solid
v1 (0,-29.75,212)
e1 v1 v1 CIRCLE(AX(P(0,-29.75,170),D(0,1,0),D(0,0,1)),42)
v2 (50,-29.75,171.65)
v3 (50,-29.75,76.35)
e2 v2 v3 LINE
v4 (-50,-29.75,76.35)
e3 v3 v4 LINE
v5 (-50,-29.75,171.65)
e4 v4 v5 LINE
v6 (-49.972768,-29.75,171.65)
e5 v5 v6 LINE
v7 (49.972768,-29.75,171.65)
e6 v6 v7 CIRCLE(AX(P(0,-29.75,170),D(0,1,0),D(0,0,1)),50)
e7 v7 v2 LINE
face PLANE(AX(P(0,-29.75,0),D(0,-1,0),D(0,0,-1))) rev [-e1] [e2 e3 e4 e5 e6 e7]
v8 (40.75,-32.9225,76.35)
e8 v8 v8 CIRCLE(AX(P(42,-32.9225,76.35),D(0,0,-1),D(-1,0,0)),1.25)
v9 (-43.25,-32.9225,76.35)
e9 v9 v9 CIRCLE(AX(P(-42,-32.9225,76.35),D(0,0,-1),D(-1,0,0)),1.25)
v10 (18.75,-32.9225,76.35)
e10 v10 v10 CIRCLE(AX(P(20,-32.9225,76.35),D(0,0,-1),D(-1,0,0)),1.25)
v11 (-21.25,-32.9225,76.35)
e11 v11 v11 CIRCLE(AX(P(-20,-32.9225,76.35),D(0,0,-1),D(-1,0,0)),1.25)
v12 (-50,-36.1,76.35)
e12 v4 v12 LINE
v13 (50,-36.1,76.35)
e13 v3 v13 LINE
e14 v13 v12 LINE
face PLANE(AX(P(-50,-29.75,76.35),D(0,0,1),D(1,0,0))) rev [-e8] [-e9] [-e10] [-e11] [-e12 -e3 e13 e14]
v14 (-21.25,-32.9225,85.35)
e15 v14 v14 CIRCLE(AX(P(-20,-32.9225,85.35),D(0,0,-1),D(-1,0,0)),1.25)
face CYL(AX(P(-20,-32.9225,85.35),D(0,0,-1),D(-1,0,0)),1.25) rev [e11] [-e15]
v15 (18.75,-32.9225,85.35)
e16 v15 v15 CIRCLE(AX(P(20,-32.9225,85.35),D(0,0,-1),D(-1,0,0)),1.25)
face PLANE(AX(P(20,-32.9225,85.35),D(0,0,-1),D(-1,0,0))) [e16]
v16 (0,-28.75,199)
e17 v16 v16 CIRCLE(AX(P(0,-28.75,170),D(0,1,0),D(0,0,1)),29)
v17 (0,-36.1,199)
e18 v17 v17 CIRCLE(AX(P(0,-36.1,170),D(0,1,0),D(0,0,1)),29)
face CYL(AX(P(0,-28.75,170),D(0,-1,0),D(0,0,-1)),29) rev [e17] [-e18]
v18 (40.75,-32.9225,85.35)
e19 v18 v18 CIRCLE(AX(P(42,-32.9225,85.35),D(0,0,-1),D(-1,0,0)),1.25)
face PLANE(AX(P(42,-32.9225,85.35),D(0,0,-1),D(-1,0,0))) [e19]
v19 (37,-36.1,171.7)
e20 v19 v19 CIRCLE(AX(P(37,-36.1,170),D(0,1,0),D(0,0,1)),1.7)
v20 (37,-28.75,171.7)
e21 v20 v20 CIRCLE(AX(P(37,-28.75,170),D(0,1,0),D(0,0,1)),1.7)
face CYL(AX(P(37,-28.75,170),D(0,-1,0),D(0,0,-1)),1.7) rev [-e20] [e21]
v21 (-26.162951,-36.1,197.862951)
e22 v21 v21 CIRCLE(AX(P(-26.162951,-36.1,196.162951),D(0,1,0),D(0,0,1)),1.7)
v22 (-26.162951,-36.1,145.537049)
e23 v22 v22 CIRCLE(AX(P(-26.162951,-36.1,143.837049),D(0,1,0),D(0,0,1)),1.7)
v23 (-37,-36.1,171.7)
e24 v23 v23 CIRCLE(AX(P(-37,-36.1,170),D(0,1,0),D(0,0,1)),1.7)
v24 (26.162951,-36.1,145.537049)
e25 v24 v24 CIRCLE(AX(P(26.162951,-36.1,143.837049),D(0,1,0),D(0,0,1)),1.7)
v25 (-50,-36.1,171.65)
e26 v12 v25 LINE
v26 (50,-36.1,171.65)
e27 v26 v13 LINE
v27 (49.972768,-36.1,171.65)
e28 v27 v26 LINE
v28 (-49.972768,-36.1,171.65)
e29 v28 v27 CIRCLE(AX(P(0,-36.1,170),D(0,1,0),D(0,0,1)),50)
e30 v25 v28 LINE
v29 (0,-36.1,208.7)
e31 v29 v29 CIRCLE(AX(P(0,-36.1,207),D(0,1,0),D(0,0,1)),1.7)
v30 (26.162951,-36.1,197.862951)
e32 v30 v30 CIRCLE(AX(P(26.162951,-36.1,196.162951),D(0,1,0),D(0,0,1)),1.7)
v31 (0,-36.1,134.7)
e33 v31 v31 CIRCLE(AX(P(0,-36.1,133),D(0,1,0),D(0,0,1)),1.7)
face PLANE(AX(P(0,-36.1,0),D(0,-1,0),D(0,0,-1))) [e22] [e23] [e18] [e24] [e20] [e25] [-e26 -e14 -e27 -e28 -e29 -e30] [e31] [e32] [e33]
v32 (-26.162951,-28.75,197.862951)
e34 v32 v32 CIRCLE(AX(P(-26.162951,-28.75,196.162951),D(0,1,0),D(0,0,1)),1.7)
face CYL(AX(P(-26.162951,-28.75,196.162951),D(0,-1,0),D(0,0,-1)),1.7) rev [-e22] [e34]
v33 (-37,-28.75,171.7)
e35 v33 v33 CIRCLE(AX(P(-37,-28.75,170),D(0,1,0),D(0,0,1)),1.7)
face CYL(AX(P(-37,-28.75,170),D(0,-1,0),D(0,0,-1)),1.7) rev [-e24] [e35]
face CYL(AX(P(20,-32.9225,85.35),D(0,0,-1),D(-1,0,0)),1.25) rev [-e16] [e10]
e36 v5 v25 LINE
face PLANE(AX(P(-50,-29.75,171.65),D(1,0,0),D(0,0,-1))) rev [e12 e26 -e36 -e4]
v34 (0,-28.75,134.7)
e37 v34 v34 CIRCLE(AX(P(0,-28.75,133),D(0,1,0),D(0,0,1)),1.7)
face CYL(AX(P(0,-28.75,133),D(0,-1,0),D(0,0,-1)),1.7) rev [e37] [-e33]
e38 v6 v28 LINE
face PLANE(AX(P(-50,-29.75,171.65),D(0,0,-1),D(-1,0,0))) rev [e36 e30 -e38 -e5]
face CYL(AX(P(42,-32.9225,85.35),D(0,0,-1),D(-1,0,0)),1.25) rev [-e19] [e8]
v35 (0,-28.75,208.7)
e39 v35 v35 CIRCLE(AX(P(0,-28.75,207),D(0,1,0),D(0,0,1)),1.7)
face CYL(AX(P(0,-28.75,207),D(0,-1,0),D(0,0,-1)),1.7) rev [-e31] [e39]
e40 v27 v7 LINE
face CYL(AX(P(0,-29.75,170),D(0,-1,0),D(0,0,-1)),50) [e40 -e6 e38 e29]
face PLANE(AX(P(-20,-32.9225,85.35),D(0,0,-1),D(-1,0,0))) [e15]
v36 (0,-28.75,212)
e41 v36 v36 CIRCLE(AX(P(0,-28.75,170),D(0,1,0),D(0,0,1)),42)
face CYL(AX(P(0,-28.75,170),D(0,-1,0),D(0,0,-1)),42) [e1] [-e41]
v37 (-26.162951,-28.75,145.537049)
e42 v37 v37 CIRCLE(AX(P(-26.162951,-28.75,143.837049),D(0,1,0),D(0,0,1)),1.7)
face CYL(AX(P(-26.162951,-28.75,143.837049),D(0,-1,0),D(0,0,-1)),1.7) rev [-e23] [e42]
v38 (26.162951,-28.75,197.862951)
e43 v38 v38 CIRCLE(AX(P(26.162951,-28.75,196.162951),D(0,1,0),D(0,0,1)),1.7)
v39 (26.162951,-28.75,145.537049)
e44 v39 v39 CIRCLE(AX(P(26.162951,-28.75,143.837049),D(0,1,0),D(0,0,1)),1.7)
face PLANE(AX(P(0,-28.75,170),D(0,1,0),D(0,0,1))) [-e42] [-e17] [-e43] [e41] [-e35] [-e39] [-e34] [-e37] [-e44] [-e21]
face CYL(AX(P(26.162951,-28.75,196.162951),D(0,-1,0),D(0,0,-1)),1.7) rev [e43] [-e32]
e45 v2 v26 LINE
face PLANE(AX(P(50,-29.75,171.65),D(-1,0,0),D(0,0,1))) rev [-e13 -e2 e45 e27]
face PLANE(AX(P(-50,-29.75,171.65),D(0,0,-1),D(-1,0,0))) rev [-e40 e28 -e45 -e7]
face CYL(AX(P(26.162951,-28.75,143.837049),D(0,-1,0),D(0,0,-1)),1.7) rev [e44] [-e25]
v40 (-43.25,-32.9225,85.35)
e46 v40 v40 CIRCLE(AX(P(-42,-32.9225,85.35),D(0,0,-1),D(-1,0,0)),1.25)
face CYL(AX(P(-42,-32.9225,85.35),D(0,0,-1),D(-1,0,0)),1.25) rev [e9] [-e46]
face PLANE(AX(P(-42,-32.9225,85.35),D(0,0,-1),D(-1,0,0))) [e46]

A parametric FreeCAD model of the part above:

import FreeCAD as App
import Part
import Sketcher

doc = App.newDocument("Part")
body = doc.addObject("PartDesign::Body", "Body")

sketch1 = body.newObject("Sketcher::SketchObject", "Sketch")
sketch1.AttachmentSupport = (doc.getObject("XZ_Plane"), [""])
sketch1.MapMode = "FlatFace"
sketch1.AttachmentOffset = App.Placement(App.Vector(0, 0, 36.1), App.Rotation())
sketch1.addGeometry([
    Part.LineSegment(App.Vector(-50, 76, 0), App.Vector(-50, 172, 0)),
    Part.LineSegment(App.Vector(-50, 172, 0), App.Vector(50, 172, 0)),
    Part.LineSegment(App.Vector(50, 172, 0), App.Vector(50, 76, 0)),
    Part.LineSegment(App.Vector(50, 76, 0), App.Vector(-50, 76, 0)),
], False)
sketch1.addConstraint([
    Sketcher.Constraint("Coincident", 0, 2, 1, 1),
    Sketcher.Constraint("Coincident", 1, 2, 2, 1),
    Sketcher.Constraint("Coincident", 2, 2, 3, 1),
    Sketcher.Constraint("Coincident", 3, 2, 0, 1),
    Sketcher.Constraint("Vertical", 0),
    Sketcher.Constraint("Horizontal", 1),
    Sketcher.Constraint("Vertical", 2),
    Sketcher.Constraint("Horizontal", 3),
    Sketcher.Constraint("DistanceX", 1, 1, 1, 2, 100.0),
    Sketcher.Constraint("DistanceY", 0, 1, 0, 2, 95.3),
    Sketcher.Constraint("DistanceX", 0, 2, -1, 1, 50.0),
    Sketcher.Constraint("DistanceY", -1, 1, 0, 2, 171.65),
])
pad1 = body.newObject("PartDesign::Pad", "Pad")
pad1.Profile = sketch1
pad1.Length = 6.35
pad1.Reversed = True

sketch2 = body.newObject("Sketcher::SketchObject", "Sketch001")
sketch2.AttachmentSupport = (doc.getObject("XZ_Plane"), [""])
sketch2.MapMode = "FlatFace"
sketch2.AttachmentOffset = App.Placement(App.Vector(0, 0, 36.1), App.Rotation())
sketch2.addGeometry(Part.Circle(App.Vector(0, 170, 0), App.Vector(0, 0, 1), 50), False)
sketch2.addConstraint([
    Sketcher.Constraint("PointOnObject", 0, 3, -2),
    Sketcher.Constraint("Diameter", 0, 100.0),
    Sketcher.Constraint("DistanceY", -1, 1, 0, 3, 170.0),
])
pad2 = body.newObject("PartDesign::Pad", "Pad001")
pad2.Profile = sketch2
pad2.Length = 6.35
pad2.Reversed = True

sketch3 = body.newObject("Sketcher::SketchObject", "Sketch002")
sketch3.AttachmentSupport = (doc.getObject("XZ_Plane"), [""])
sketch3.MapMode = "FlatFace"
sketch3.AttachmentOffset = App.Placement(App.Vector(0, 0, 29.75), App.Rotation())
sketch3.addGeometry([
    Part.Circle(App.Vector(0, 170, 0), App.Vector(0, 0, 1), 42),
    Part.Circle(App.Vector(0, 170, 0), App.Vector(0, 0, 1), 29),
], False)
sketch3.addConstraint([
    Sketcher.Constraint("Coincident", 1, 3, 0, 3),
    Sketcher.Constraint("PointOnObject", 0, 3, -2),
    Sketcher.Constraint("Diameter", 0, 84.0),
    Sketcher.Constraint("Diameter", 1, 58.0),
    Sketcher.Constraint("DistanceY", -1, 1, 0, 3, 170.0),
])
pad3 = body.newObject("PartDesign::Pad", "Pad002")
pad3.Profile = sketch3
pad3.Length = 1
pad3.Reversed = True

sketch4 = body.newObject("Sketcher::SketchObject", "Sketch003")
sketch4.AttachmentSupport = (doc.getObject("XZ_Plane"), [""])
sketch4.MapMode = "FlatFace"
sketch4.AttachmentOffset = App.Placement(App.Vector(0, 0, 36.1), App.Rotation())
sketch4.addGeometry(Part.Circle(App.Vector(0, 170, 0), App.Vector(0, 0, 1), 29), False)
sketch4.addConstraint([
    Sketcher.Constraint("PointOnObject", 0, 3, -2),
    Sketcher.Constraint("Diameter", 0, 58.0),
    Sketcher.Constraint("DistanceY", -1, 1, 0, 3, 170.0),
])
pocket1 = body.newObject("PartDesign::Pocket", "Pocket")
pocket1.Profile = sketch4
pocket1.Length = 7.35

sketch5 = body.newObject("Sketcher::SketchObject", "Sketch004")
sketch5.AttachmentSupport = (doc.getObject("XZ_Plane"), [""])
sketch5.MapMode = "FlatFace"
sketch5.AttachmentOffset = App.Placement(App.Vector(0, 0, 36.1), App.Rotation())
sketch5.addGeometry([
    Part.Circle(App.Vector(37, 170, 0), App.Vector(0, 0, 1), 1.7),
    Part.Circle(App.Vector(26.2, 196.2, 0), App.Vector(0, 0, 1), 1.7),
    Part.Circle(App.Vector(0, 207, 0), App.Vector(0, 0, 1), 1.7),
    Part.Circle(App.Vector(-26.2, 196.2, 0), App.Vector(0, 0, 1), 1.7),
    Part.Circle(App.Vector(-37, 170, 0), App.Vector(0, 0, 1), 1.7),
    Part.Circle(App.Vector(-26.2, 143.8, 0), App.Vector(0, 0, 1), 1.7),
    Part.Circle(App.Vector(0, 133, 0), App.Vector(0, 0, 1), 1.7),
    Part.Circle(App.Vector(26.2, 143.8, 0), App.Vector(0, 0, 1), 1.7),
], False)
sketch5.addConstraint([
    Sketcher.Constraint("Equal", 0, 1),
    Sketcher.Constraint("Equal", 1, 2),
    Sketcher.Constraint("Equal", 2, 3),
    Sketcher.Constraint("Equal", 3, 4),
    Sketcher.Constraint("Equal", 4, 5),
    Sketcher.Constraint("Equal", 5, 6),
    Sketcher.Constraint("Equal", 6, 7),
    Sketcher.Constraint("Symmetric", 1, 3, 3, 3, -2),
    Sketcher.Constraint("Symmetric", 0, 3, 4, 3, -2),
    Sketcher.Constraint("Symmetric", 5, 3, 7, 3, -2),
    Sketcher.Constraint("PointOnObject", 2, 3, -2),
    Sketcher.Constraint("PointOnObject", 6, 3, -2),
    Sketcher.Constraint("Vertical", 3, 3, 5, 3),
    Sketcher.Constraint("Diameter", 0, 3.4),
    Sketcher.Constraint("DistanceX", -1, 1, 0, 3, 37.0),
    Sketcher.Constraint("DistanceY", -1, 1, 0, 3, 170.0),
    Sketcher.Constraint("DistanceY", -1, 1, 2, 3, 207.0),
    Sketcher.Constraint("DistanceY", -1, 1, 6, 3, 133.0),
    Sketcher.Constraint("DistanceX", 3, 3, 1, 3, 52.325902),
    Sketcher.Constraint("DistanceY", 5, 3, 3, 3, 52.325902),
    Sketcher.Constraint("DistanceY", -1, 1, 1, 3, 196.162951),
])
pocket2 = body.newObject("PartDesign::Pocket", "Pocket001")
pocket2.Profile = sketch5
pocket2.Length = 7.35

sketch6 = body.newObject("Sketcher::SketchObject", "Sketch005")
sketch6.AttachmentSupport = (doc.getObject("XY_Plane"), [""])
sketch6.MapMode = "FlatFace"
sketch6.AttachmentOffset = App.Placement(App.Vector(0, 0, 76.35), App.Rotation())
sketch6.addGeometry([
    Part.Circle(App.Vector(-42, -32.9, 0), App.Vector(0, 0, 1), 1.2),
    Part.Circle(App.Vector(-20, -32.9, 0), App.Vector(0, 0, 1), 1.2),
    Part.Circle(App.Vector(20, -32.9, 0), App.Vector(0, 0, 1), 1.2),
    Part.Circle(App.Vector(42, -32.9, 0), App.Vector(0, 0, 1), 1.2),
], False)
sketch6.addConstraint([
    Sketcher.Constraint("Equal", 0, 1),
    Sketcher.Constraint("Equal", 1, 2),
    Sketcher.Constraint("Equal", 2, 3),
    Sketcher.Constraint("Symmetric", 1, 3, 2, 3, -2),
    Sketcher.Constraint("Symmetric", 0, 3, 3, 3, -2),
    Sketcher.Constraint("Horizontal", 0, 3, 1, 3),
    Sketcher.Constraint("Diameter", 0, 2.5),
    Sketcher.Constraint("DistanceX", 0, 3, -1, 1, 42.0),
    Sketcher.Constraint("DistanceX", 1, 3, -1, 1, 20.0),
    Sketcher.Constraint("DistanceY", 0, 3, -1, 1, 32.9225),
])
pocket3 = body.newObject("PartDesign::Pocket", "Pocket002")
pocket3.Profile = sketch6
pocket3.Length = 9
pocket3.Reversed = True

doc.recompute()
